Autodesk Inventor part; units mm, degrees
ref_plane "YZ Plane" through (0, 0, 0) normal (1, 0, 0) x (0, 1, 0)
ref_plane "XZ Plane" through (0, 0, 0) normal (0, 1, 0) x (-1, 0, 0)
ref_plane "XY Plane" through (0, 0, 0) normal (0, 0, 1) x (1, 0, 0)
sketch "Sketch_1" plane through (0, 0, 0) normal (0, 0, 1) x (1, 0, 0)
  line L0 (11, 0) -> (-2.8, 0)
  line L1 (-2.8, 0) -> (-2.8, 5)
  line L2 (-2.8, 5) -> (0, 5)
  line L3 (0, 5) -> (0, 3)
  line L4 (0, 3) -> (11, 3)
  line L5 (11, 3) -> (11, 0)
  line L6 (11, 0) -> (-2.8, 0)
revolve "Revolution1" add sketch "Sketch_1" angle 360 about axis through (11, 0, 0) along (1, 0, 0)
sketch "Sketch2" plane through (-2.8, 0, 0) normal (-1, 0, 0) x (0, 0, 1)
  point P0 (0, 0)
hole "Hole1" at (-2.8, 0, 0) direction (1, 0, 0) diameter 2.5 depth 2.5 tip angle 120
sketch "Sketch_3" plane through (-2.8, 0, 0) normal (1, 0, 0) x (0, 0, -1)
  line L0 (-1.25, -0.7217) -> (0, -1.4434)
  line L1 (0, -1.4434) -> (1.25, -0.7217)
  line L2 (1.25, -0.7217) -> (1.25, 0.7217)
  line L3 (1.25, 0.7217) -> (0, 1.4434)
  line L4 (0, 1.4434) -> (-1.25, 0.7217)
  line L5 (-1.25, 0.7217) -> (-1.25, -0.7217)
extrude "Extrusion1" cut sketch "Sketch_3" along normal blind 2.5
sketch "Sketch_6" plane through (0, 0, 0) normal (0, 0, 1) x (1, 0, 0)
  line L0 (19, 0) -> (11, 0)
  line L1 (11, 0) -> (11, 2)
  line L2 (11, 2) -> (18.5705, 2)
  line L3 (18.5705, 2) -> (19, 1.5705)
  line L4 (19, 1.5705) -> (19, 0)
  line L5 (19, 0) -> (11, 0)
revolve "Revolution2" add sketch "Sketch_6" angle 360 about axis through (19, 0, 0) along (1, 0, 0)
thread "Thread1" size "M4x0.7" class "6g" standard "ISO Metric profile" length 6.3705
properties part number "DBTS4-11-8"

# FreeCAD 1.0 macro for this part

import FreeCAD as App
import Part
import Sketcher
from FreeCAD import Vector
Q = App.Units.Quantity

doc = App.newDocument("Part")
body = doc.addObject("PartDesign::Body", "Body")

# Sketch on XY plane
sketch1 = body.newObject("Sketcher::SketchObject", "Sketch")
sketch1.AttachmentSupport = (doc.getObject("XY_Plane"), [""])
sketch1.MapMode = "FlatFace"
sketch1.addGeometry([
    Part.LineSegment(Vector(-2.8, 0, 0), Vector(11, 0, 0)),  # 0
    Part.LineSegment(Vector(11, 0, 0), Vector(11, 3, 0)),  # 1
    Part.LineSegment(Vector(11, 3, 0), Vector(0, 3, 0)),  # 2
    Part.LineSegment(Vector(0, 3, 0), Vector(0, 5, 0)),  # 3
    Part.LineSegment(Vector(0, 5, 0), Vector(-2.8, 5, 0)),  # 4
    Part.LineSegment(Vector(-2.8, 5, 0), Vector(-2.8, 0, 0)),  # 5
], False)
sketch1.addConstraint([
    Sketcher.Constraint("Coincident", 0, 2, 1, 1),
    Sketcher.Constraint("Coincident", 1, 2, 2, 1),
    Sketcher.Constraint("Coincident", 2, 2, 3, 1),
    Sketcher.Constraint("Coincident", 3, 2, 4, 1),
    Sketcher.Constraint("Coincident", 4, 2, 5, 1),
    Sketcher.Constraint("Coincident", 5, 2, 0, 1),
    Sketcher.Constraint("Horizontal", 0),
    Sketcher.Constraint("Vertical", 1),
    Sketcher.Constraint("Horizontal", 2),
    Sketcher.Constraint("Vertical", 3),
    Sketcher.Constraint("Horizontal", 4),
    Sketcher.Constraint("Vertical", 5),
    Sketcher.Constraint("PointOnObject", 0, 2, -1),
    Sketcher.Constraint("PointOnObject", 2, 2, -2),
    Sketcher.Constraint("DistanceX", 2, 2, 2, 1, Q("11 mm")),
    Sketcher.Constraint("DistanceY", 1, 1, 1, 2, Q("3 mm")),
    Sketcher.Constraint("DistanceY", 3, 1, 3, 2, Q("2 mm")),
    Sketcher.Constraint("DistanceX", 0, 1, 0, 2, Q("13.8 mm")),
])
revolution = body.newObject("PartDesign::Revolution", "Revolution")
revolution.Profile = sketch1
revolution.ReferenceAxis = (sketch1, ["H_Axis"])
revolution.Angle = 360

# Sketch on YZ plane
sketch2 = body.newObject("Sketcher::SketchObject", "Sketch001")
sketch2.AttachmentSupport = (doc.getObject("YZ_Plane"), [""])
sketch2.MapMode = "FlatFace"
sketch2.AttachmentOffset = App.Placement(Vector(0, 0, -2.8), App.Rotation())
sketch2.addGeometry(Part.Circle(Vector(0, 0, 0), Vector(0, 0, 1), 1.25), False)
sketch2.addConstraint([
    Sketcher.Constraint("Coincident", 0, 3, -1, 1),
    Sketcher.Constraint("Diameter", 0, Q("2.5 mm")),
])
doc.recompute()
hole = body.newObject("PartDesign::Hole", "Hole")
hole.Profile = sketch2
hole.ThreadType = "None"
hole.Diameter = 2.5
hole.DepthType = "Dimension"
hole.Depth = 2.5
hole.DrillPoint = "Angled"
hole.DrillPointAngle = 120
hole.Reversed = True

# Sketch on YZ plane
sketch3 = body.newObject("Sketcher::SketchObject", "Sketch002")
sketch3.AttachmentSupport = (doc.getObject("YZ_Plane"), [""])
sketch3.MapMode = "FlatFace"
sketch3.AttachmentOffset = App.Placement(Vector(0, 0, -2.8), App.Rotation())
sketch3.addGeometry([
    Part.LineSegment(Vector(0.7217, 1.25, 0), Vector(-0.7217, 1.25, 0)),  # 0
    Part.LineSegment(Vector(-0.7217, 1.25, 0), Vector(-1.4434, 0, 0)),  # 1
    Part.LineSegment(Vector(-1.4434, 0, 0), Vector(-0.7217, -1.25, 0)),  # 2
    Part.LineSegment(Vector(-0.7217, -1.25, 0), Vector(0.7217, -1.25, 0)),  # 3
    Part.LineSegment(Vector(0.7217, -1.25, 0), Vector(1.4434, 0, 0)),  # 4
    Part.LineSegment(Vector(1.4434, 0, 0), Vector(0.7217, 1.25, 0)),  # 5
], False)
sketch3.addConstraint([
    Sketcher.Constraint("Coincident", 0, 2, 1, 1),
    Sketcher.Constraint("Coincident", 1, 2, 2, 1),
    Sketcher.Constraint("Coincident", 2, 2, 3, 1),
    Sketcher.Constraint("Coincident", 3, 2, 4, 1),
    Sketcher.Constraint("Coincident", 4, 2, 5, 1),
    Sketcher.Constraint("Coincident", 5, 2, 0, 1),
    Sketcher.Constraint("Horizontal", 0),
    Sketcher.Constraint("Horizontal", 3),
    Sketcher.Constraint("Symmetric", 0, 2, 3, 2, -1, 1),
    Sketcher.Constraint("Symmetric", 1, 2, 4, 2, -1, 1),
    Sketcher.Constraint("PointOnObject", 1, 2, -1),
    Sketcher.Constraint("Parallel", 2, 5),
    Sketcher.Constraint("Vertical", 0, 2, 2, 2),
    Sketcher.Constraint("Angle", 1, Q("-120.0004 deg")),
    Sketcher.Constraint("DistanceY", 2, 2, 0, 2, Q("2.5 mm")),
    Sketcher.Constraint("DistanceX", 0, 2, 0, 1, Q("1.4434 mm")),
])
pocket1 = body.newObject("PartDesign::Pocket", "Pocket")
pocket1.Profile = sketch3
pocket1.Length = 2.5
pocket1.Reversed = True

# Sketch on XY plane
sketch4 = body.newObject("Sketcher::SketchObject", "Sketch003")
sketch4.AttachmentSupport = (doc.getObject("XY_Plane"), [""])
sketch4.MapMode = "FlatFace"
sketch4.addGeometry([
    Part.LineSegment(Vector(11, 0, 0), Vector(19, 0, 0)),  # 0
    Part.LineSegment(Vector(19, 0, 0), Vector(19, 1.5705, 0)),  # 1
    Part.LineSegment(Vector(19, 1.5705, 0), Vector(18.5705, 2, 0)),  # 2
    Part.LineSegment(Vector(18.5705, 2, 0), Vector(11, 2, 0)),  # 3
    Part.LineSegment(Vector(11, 2, 0), Vector(11, 0, 0)),  # 4
], False)
sketch4.addConstraint([
    Sketcher.Constraint("Coincident", 0, 2, 1, 1),
    Sketcher.Constraint("Coincident", 1, 2, 2, 1),
    Sketcher.Constraint("Coincident", 2, 2, 3, 1),
    Sketcher.Constraint("Coincident", 3, 2, 4, 1),
    Sketcher.Constraint("Coincident", 4, 2, 0, 1),
    Sketcher.Constraint("Horizontal", 0),
    Sketcher.Constraint("Vertical", 1),
    Sketcher.Constraint("Horizontal", 3),
    Sketcher.Constraint("Vertical", 4),
    Sketcher.Constraint("PointOnObject", 0, 2, -1),
    Sketcher.Constraint("DistanceX", 0, 1, 0, 2, Q("8 mm")),
    Sketcher.Constraint("DistanceY", 4, 2, 4, 1, Q("2 mm")),
    Sketcher.Constraint("Angle", 2, Q("135 deg")),
    Sketcher.Constraint("DistanceX", -1, 1, 0, 2, Q("19 mm")),
    Sketcher.Constraint("DistanceX", 3, 2, 3, 1, Q("7.5705 mm")),
])
revolution2 = body.newObject("PartDesign::Revolution", "Revolution001")
revolution2.Profile = sketch4
revolution2.ReferenceAxis = (sketch4, ["H_Axis"])
revolution2.Angle = 360

doc.recompute()
